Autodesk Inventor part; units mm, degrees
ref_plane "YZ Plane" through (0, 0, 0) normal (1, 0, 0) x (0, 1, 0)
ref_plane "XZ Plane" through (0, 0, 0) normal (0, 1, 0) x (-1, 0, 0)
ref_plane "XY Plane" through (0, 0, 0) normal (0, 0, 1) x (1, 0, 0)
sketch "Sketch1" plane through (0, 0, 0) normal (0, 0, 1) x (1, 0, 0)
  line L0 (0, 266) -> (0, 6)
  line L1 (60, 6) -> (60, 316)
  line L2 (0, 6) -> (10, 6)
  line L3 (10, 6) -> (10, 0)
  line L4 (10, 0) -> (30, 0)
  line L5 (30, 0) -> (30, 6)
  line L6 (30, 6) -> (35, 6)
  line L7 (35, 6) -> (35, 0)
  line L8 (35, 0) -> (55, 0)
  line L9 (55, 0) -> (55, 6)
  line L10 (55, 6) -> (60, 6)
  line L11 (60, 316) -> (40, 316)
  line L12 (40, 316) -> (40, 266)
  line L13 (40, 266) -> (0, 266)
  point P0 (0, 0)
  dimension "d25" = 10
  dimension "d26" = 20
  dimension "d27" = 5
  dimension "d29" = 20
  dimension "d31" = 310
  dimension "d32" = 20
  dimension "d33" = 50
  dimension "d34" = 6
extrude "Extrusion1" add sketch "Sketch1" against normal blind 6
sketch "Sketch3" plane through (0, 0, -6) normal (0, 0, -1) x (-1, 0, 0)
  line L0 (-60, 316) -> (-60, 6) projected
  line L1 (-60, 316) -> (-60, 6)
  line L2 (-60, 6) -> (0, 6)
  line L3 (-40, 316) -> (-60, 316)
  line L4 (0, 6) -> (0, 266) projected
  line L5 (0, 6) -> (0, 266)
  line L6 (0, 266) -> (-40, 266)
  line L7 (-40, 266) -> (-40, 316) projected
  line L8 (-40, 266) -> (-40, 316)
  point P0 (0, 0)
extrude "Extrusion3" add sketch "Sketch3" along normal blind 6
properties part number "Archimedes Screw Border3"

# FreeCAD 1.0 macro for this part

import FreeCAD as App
import Part
import Sketcher
Q = App.Units.Quantity

doc = App.newDocument("Part")
body = doc.addObject("PartDesign::Body", "Body")

sketch1 = doc.addObject("Sketcher::SketchObject", "Sketch")
body.addObject(sketch1)
sketch1.AttachmentSupport = (doc.XY_Plane, [""])
sketch1.MapMode = "FlatFace"
sketch1.addGeometry(Part.LineSegment(App.Vector(40, 266, 0), App.Vector(0, 266, 0)), False)
sketch1.addGeometry(Part.LineSegment(App.Vector(0, 266, 0), App.Vector(0, 6, 0)), False)
sketch1.addGeometry(Part.LineSegment(App.Vector(0, 6, 0), App.Vector(10, 6, 0)), False)
sketch1.addGeometry(Part.LineSegment(App.Vector(10, 6, 0), App.Vector(10, 0, 0)), False)
sketch1.addGeometry(Part.LineSegment(App.Vector(10, 0, 0), App.Vector(30, 0, 0)), False)
sketch1.addGeometry(Part.LineSegment(App.Vector(30, 0, 0), App.Vector(30, 6, 0)), False)
sketch1.addGeometry(Part.LineSegment(App.Vector(30, 6, 0), App.Vector(35, 6, 0)), False)
sketch1.addGeometry(Part.LineSegment(App.Vector(35, 6, 0), App.Vector(35, 0, 0)), False)
sketch1.addGeometry(Part.LineSegment(App.Vector(35, 0, 0), App.Vector(55, 0, 0)), False)
sketch1.addGeometry(Part.LineSegment(App.Vector(55, 0, 0), App.Vector(55, 6, 0)), False)
sketch1.addGeometry(Part.LineSegment(App.Vector(55, 6, 0), App.Vector(60, 6, 0)), False)
sketch1.addGeometry(Part.LineSegment(App.Vector(60, 6, 0), App.Vector(60, 316, 0)), False)
sketch1.addGeometry(Part.LineSegment(App.Vector(60, 316, 0), App.Vector(40, 316, 0)), False)
sketch1.addGeometry(Part.LineSegment(App.Vector(40, 316, 0), App.Vector(40, 266, 0)), False)
sketch1.addConstraint(Sketcher.Constraint("Coincident", 0, 2, 1, 1))
sketch1.addConstraint(Sketcher.Constraint("Coincident", 1, 2, 2, 1))
sketch1.addConstraint(Sketcher.Constraint("Coincident", 2, 2, 3, 1))
sketch1.addConstraint(Sketcher.Constraint("Coincident", 3, 2, 4, 1))
sketch1.addConstraint(Sketcher.Constraint("Coincident", 4, 2, 5, 1))
sketch1.addConstraint(Sketcher.Constraint("Coincident", 5, 2, 6, 1))
sketch1.addConstraint(Sketcher.Constraint("Coincident", 6, 2, 7, 1))
sketch1.addConstraint(Sketcher.Constraint("Coincident", 7, 2, 8, 1))
sketch1.addConstraint(Sketcher.Constraint("Coincident", 8, 2, 9, 1))
sketch1.addConstraint(Sketcher.Constraint("Coincident", 9, 2, 10, 1))
sketch1.addConstraint(Sketcher.Constraint("Coincident", 10, 2, 11, 1))
sketch1.addConstraint(Sketcher.Constraint("Coincident", 11, 2, 12, 1))
sketch1.addConstraint(Sketcher.Constraint("Coincident", 12, 2, 13, 1))
sketch1.addConstraint(Sketcher.Constraint("Coincident", 13, 2, 0, 1))
sketch1.addConstraint(Sketcher.Constraint("Horizontal", 0))
sketch1.addConstraint(Sketcher.Constraint("Vertical", 1))
sketch1.addConstraint(Sketcher.Constraint("Horizontal", 2))
sketch1.addConstraint(Sketcher.Constraint("Vertical", 3))
sketch1.addConstraint(Sketcher.Constraint("Horizontal", 4))
sketch1.addConstraint(Sketcher.Constraint("Vertical", 5))
sketch1.addConstraint(Sketcher.Constraint("Horizontal", 6))
sketch1.addConstraint(Sketcher.Constraint("Vertical", 7))
sketch1.addConstraint(Sketcher.Constraint("Horizontal", 8))
sketch1.addConstraint(Sketcher.Constraint("Vertical", 9))
sketch1.addConstraint(Sketcher.Constraint("Horizontal", 10))
sketch1.addConstraint(Sketcher.Constraint("Vertical", 11))
sketch1.addConstraint(Sketcher.Constraint("Horizontal", 12))
sketch1.addConstraint(Sketcher.Constraint("Vertical", 13))
sketch1.addConstraint(Sketcher.Constraint("PointOnObject", 0, 2, -2))
sketch1.addConstraint(Sketcher.Constraint("PointOnObject", 3, 2, -1))
sketch1.addConstraint(Sketcher.Constraint("PointOnObject", 7, 2, -1))
sketch1.addConstraint(Sketcher.Constraint("Horizontal", 2, 2, 5, 2))
sketch1.addConstraint(Sketcher.Constraint("Horizontal", 6, 2, 9, 2))
sketch1.addConstraint(Sketcher.Constraint("Equal", 4, 8))
sketch1.addConstraint(Sketcher.Constraint("Equal", 6, 10))
sketch1.addConstraint(Sketcher.Constraint("Equal", 8, 12))
sketch1.addConstraint(Sketcher.Constraint("DistanceX", 2, 1, 2, 2, Q("10 mm")))
sketch1.addConstraint(Sketcher.Constraint("DistanceX", 4, 1, 4, 2, Q("20 mm")))
sketch1.addConstraint(Sketcher.Constraint("DistanceX", 6, 1, 6, 2, Q("5 mm")))
sketch1.addConstraint(Sketcher.Constraint("DistanceY", 3, 2, 3, 1, Q("6 mm")))
sketch1.addConstraint(Sketcher.Constraint("DistanceY", 11, 1, 11, 2, Q("310 mm")))
sketch1.addConstraint(Sketcher.Constraint("DistanceY", 13, 2, 13, 1, Q("50 mm")))
pad1 = doc.addObject("PartDesign::Pad", "Pad")
body.addObject(pad1)
pad1.Profile = sketch1
pad1.Length = 6
pad1.Reversed = True

sketch2 = doc.addObject("Sketcher::SketchObject", "Sketch001")
body.addObject(sketch2)
sketch2.AttachmentSupport = (doc.XY_Plane, [""])
sketch2.MapMode = "FlatFace"
sketch2.AttachmentOffset = App.Placement(App.Vector(0, 0, -6), App.Rotation())
sketch2.addGeometry(Part.LineSegment(App.Vector(40, 316, 0), App.Vector(60, 316, 0)), False)
sketch2.addGeometry(Part.LineSegment(App.Vector(60, 316, 0), App.Vector(60, 6, 0)), False)
sketch2.addGeometry(Part.LineSegment(App.Vector(60, 6, 0), App.Vector(0, 6, 0)), False)
sketch2.addGeometry(Part.LineSegment(App.Vector(0, 6, 0), App.Vector(0, 266, 0)), False)
sketch2.addGeometry(Part.LineSegment(App.Vector(0, 266, 0), App.Vector(40, 266, 0)), False)
sketch2.addGeometry(Part.LineSegment(App.Vector(40, 266, 0), App.Vector(40, 316, 0)), False)
sketch2.addConstraint(Sketcher.Constraint("Coincident", 0, 2, 1, 1))
sketch2.addConstraint(Sketcher.Constraint("Coincident", 1, 2, 2, 1))
sketch2.addConstraint(Sketcher.Constraint("Coincident", 2, 2, 3, 1))
sketch2.addConstraint(Sketcher.Constraint("Coincident", 3, 2, 4, 1))
sketch2.addConstraint(Sketcher.Constraint("Coincident", 4, 2, 5, 1))
sketch2.addConstraint(Sketcher.Constraint("Coincident", 5, 2, 0, 1))
sketch2.addConstraint(Sketcher.Constraint("Horizontal", 0))
sketch2.addConstraint(Sketcher.Constraint("Vertical", 1))
sketch2.addConstraint(Sketcher.Constraint("Horizontal", 2))
sketch2.addConstraint(Sketcher.Constraint("Vertical", 3))
sketch2.addConstraint(Sketcher.Constraint("Horizontal", 4))
sketch2.addConstraint(Sketcher.Constraint("Vertical", 5))
sketch2.addConstraint(Sketcher.Constraint("PointOnObject", 2, 2, -2))
sketch2.addConstraint(Sketcher.Constraint("DistanceX", 0, 1, 0, 2, Q("20 mm")))
sketch2.addConstraint(Sketcher.Constraint("DistanceX", 2, 2, 2, 1, Q("60 mm")))
sketch2.addConstraint(Sketcher.Constraint("DistanceY", 1, 2, 1, 1, Q("310 mm")))
sketch2.addConstraint(Sketcher.Constraint("DistanceY", 3, 1, 3, 2, Q("260 mm")))
sketch2.addConstraint(Sketcher.Constraint("DistanceY", -1, 1, 0, 2, Q("316 mm")))
pad2 = doc.addObject("PartDesign::Pad", "Pad001")
body.addObject(pad2)
pad2.Profile = sketch2
pad2.Length = 6
pad2.Reversed = True

doc.recompute()
